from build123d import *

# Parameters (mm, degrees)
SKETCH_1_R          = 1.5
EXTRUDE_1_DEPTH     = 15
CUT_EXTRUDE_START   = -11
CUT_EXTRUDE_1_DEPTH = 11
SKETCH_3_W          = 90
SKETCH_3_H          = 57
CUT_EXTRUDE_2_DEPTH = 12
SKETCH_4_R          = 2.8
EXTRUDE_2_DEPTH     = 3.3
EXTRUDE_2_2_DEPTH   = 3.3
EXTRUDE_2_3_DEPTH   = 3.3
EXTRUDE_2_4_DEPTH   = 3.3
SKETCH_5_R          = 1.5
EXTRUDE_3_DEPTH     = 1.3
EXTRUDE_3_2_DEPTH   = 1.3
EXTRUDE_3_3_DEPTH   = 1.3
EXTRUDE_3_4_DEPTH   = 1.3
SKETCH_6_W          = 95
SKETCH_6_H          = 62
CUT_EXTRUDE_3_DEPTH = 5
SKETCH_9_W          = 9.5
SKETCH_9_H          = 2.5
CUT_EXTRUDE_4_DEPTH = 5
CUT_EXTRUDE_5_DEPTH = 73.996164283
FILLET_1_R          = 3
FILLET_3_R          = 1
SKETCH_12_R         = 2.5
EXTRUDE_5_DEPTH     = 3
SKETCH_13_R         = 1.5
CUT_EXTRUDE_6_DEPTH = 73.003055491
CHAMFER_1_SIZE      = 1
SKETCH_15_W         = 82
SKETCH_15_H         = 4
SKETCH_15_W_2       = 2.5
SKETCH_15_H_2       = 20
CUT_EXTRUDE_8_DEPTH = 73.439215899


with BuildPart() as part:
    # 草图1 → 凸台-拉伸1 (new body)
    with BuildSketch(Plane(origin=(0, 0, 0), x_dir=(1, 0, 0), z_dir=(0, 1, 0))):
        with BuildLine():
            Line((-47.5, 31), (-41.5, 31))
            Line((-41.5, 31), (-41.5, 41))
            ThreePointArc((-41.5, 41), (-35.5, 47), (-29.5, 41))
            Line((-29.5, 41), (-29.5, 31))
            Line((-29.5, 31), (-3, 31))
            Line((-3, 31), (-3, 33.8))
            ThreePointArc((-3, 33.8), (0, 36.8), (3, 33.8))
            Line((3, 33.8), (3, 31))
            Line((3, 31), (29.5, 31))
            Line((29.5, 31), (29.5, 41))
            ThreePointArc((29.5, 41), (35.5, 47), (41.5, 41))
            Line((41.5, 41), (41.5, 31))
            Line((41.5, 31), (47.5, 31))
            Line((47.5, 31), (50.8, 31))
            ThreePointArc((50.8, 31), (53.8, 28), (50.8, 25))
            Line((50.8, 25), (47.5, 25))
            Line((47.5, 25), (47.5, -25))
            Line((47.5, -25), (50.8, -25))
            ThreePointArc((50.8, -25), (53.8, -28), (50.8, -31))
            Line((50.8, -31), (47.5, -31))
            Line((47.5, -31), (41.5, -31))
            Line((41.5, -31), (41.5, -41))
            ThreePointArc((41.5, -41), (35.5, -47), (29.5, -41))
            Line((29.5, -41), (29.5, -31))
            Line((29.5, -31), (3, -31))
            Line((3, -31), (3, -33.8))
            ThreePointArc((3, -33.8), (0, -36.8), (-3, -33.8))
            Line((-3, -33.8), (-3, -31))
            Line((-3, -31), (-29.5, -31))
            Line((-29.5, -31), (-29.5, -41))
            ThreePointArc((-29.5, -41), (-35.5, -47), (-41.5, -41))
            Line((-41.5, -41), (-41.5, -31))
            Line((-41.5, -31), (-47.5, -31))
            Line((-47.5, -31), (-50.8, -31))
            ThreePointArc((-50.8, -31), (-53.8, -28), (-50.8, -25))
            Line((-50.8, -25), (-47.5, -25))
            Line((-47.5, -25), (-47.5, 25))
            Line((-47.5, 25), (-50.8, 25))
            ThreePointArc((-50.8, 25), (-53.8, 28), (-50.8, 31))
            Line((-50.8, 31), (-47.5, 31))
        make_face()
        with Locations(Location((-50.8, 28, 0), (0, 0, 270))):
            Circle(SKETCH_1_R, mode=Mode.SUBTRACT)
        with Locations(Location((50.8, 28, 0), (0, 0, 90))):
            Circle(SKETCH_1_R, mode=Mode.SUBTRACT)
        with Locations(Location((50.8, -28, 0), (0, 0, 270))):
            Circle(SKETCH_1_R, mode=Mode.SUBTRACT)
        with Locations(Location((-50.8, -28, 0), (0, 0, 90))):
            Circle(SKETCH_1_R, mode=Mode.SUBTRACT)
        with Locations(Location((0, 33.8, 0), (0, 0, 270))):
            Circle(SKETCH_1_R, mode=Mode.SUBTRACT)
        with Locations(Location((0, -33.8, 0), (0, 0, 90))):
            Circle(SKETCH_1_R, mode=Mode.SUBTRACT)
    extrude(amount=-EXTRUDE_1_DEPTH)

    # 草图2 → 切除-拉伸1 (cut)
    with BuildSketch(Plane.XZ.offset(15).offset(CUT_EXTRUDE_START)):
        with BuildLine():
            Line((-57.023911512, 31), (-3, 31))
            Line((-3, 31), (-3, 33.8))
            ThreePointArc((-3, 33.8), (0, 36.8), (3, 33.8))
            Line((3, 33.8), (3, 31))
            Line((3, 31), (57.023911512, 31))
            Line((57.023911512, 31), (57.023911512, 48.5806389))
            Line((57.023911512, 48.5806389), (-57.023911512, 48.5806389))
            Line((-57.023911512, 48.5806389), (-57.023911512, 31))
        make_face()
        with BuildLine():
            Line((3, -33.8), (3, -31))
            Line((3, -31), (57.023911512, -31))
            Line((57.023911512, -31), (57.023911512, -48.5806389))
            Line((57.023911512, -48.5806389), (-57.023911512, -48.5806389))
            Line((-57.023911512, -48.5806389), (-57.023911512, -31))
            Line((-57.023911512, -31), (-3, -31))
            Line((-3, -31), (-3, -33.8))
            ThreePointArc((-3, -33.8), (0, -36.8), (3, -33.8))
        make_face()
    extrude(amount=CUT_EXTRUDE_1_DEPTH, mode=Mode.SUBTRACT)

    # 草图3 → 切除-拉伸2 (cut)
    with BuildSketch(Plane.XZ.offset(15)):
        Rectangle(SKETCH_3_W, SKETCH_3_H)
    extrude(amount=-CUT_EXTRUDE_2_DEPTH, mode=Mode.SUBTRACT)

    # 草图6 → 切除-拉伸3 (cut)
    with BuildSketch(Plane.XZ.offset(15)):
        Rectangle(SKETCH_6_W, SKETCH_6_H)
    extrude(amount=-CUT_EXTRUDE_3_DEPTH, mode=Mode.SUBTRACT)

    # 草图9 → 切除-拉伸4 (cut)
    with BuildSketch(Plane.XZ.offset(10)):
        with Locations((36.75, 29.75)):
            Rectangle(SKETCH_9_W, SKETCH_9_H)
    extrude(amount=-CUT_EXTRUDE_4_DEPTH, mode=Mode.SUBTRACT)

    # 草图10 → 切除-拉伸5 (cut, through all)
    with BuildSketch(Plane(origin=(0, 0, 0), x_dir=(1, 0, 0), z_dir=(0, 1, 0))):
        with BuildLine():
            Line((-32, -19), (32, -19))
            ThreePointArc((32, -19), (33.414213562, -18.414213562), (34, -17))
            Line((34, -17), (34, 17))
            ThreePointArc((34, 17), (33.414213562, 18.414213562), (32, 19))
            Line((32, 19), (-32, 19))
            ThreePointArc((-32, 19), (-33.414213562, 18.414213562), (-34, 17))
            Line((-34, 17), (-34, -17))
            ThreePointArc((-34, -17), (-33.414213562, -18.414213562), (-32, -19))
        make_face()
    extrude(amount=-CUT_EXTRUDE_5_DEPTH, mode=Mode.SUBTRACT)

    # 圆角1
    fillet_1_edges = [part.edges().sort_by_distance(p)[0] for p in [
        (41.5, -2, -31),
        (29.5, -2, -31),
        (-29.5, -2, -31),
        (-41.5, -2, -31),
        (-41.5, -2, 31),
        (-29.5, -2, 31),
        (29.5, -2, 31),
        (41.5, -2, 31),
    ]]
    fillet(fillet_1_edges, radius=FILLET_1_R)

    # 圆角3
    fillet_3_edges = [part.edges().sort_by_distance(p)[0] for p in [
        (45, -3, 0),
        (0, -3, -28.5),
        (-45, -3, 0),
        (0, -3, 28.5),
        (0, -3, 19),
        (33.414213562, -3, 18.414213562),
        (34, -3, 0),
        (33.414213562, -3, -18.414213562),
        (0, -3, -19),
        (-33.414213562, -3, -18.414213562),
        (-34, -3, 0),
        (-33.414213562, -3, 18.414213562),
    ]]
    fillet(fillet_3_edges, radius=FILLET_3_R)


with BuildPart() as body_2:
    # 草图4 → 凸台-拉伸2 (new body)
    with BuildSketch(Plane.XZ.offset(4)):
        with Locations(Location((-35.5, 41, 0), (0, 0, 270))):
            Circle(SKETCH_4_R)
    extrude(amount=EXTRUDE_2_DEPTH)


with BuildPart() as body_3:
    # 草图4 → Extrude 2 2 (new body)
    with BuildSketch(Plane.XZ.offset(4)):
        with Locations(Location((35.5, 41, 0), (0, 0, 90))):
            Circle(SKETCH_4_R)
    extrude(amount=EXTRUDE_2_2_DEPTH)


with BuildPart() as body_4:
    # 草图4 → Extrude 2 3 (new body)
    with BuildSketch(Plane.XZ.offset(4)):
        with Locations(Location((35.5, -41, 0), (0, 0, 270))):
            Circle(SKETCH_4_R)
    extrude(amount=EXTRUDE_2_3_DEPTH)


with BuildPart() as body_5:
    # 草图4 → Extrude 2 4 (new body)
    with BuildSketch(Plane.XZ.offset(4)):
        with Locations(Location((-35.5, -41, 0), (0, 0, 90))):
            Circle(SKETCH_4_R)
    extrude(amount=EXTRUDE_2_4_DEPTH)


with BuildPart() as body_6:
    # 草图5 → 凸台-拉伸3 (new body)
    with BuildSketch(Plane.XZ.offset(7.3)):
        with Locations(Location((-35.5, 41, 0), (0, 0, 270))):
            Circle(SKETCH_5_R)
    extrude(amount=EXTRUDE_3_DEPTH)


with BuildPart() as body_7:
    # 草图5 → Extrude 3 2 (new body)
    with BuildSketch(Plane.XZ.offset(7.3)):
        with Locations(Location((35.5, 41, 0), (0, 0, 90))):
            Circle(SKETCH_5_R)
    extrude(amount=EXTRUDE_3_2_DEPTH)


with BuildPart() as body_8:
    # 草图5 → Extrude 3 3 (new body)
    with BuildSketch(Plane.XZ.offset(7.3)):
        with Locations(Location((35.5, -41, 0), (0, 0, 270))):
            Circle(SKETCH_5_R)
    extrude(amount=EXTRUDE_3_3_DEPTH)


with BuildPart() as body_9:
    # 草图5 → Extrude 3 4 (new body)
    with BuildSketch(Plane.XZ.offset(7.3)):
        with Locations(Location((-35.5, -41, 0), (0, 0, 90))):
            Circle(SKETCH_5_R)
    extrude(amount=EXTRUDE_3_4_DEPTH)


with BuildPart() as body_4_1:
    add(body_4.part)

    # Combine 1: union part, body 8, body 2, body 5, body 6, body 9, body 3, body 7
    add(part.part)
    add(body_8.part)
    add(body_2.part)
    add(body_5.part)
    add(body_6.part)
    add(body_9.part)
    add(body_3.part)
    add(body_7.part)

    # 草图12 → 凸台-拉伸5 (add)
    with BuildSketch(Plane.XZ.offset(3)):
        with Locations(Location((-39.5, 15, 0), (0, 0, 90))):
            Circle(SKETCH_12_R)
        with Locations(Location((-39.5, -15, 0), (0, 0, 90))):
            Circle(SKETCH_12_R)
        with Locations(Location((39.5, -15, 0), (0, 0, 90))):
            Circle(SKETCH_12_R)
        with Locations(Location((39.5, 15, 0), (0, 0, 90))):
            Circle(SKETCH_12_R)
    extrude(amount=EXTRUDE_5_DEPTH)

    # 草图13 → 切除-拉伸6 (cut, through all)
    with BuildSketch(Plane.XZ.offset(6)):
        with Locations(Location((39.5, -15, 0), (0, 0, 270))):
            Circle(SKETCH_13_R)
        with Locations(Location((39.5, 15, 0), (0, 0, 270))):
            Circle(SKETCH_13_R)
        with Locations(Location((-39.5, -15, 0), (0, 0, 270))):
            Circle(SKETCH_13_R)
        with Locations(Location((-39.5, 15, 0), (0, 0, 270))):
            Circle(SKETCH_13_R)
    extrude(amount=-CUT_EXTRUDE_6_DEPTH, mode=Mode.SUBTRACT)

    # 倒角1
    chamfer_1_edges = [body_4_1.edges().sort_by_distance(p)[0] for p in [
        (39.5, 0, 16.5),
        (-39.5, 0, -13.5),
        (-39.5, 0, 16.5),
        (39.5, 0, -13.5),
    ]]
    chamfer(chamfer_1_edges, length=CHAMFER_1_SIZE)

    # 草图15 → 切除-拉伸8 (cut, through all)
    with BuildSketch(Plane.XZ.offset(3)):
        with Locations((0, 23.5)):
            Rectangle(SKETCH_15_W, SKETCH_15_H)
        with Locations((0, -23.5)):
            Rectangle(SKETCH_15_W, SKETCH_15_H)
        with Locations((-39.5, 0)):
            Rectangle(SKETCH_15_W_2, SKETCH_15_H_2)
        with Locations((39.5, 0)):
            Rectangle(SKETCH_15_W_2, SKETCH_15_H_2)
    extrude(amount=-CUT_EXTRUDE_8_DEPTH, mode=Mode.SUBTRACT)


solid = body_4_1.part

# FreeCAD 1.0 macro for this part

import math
import FreeCAD as App
import Part
import Sketcher

V = App.Vector
Q = App.Units.Quantity


def edges_at(feature, points):
    """Names of the edges that pass closest to the given points."""
    edges = feature.Shape.Edges
    near = lambda p: min(range(len(edges)), key=lambda i: edges[i].distToShape(Part.Vertex(*p))[0])
    return sorted({f"Edge{near(p) + 1}" for p in points})


def add_polygon(sketch, points):
    """Adds a closed chain of lines whose ends are joined by coincident constraints."""
    first, n = sketch.GeometryCount, len(points)
    for a, b in zip(points, points[1:] + points[:1]):
        sketch.addGeometry(Part.LineSegment(App.Vector(*a, 0), App.Vector(*b, 0)), False)
    for i in range(n):
        sketch.addConstraint(Sketcher.Constraint("Coincident", first + i, 2, first + (i + 1) % n, 1))

doc = App.newDocument("Part")
body = doc.addObject("PartDesign::Body", "Body")

# Sketch on XZ plane
sketch1 = doc.addObject("Sketcher::SketchObject", "Sketch")
body.addObject(sketch1)
sketch1.AttachmentSupport = (doc.XZ_Plane, [""])
sketch1.MapMode = "FlatFace"
sketch1.addGeometry([
    Part.LineSegment(V(-41.5, -41, 0), V(-41.5, -31, 0)),  # 0
    Part.LineSegment(V(-41.5, -31, 0), V(-50.8, -31, 0)),  # 1
    Part.ArcOfCircle(Part.Circle(V(-50.8, -28, 0), V(0, 0, 1), 3), math.radians(90), math.radians(270)),  # 2
    Part.LineSegment(V(-50.8, -25, 0), V(-47.5, -25, 0)),  # 3
    Part.LineSegment(V(-47.5, -25, 0), V(-47.5, 25, 0)),  # 4
    Part.LineSegment(V(-47.5, 25, 0), V(-50.8, 25, 0)),  # 5
    Part.ArcOfCircle(Part.Circle(V(-50.8, 28, 0), V(0, 0, 1), 3), math.radians(90), math.radians(270)),  # 6
    Part.LineSegment(V(-50.8, 31, 0), V(-41.5, 31, 0)),  # 7
    Part.LineSegment(V(-41.5, 31, 0), V(-41.5, 41, 0)),  # 8
    Part.ArcOfCircle(Part.Circle(V(-35.5, 41, 0), V(0, 0, 1), 6), math.radians(0), math.radians(180)),  # 9
    Part.LineSegment(V(-29.5, 41, 0), V(-29.5, 31, 0)),  # 10
    Part.LineSegment(V(-29.5, 31, 0), V(-3, 31, 0)),  # 11
    Part.LineSegment(V(-3, 31, 0), V(-3, 33.8, 0)),  # 12
    Part.ArcOfCircle(Part.Circle(V(0, 33.8, 0), V(0, 0, 1), 3), math.radians(0), math.radians(180)),  # 13
    Part.LineSegment(V(3, 33.8, 0), V(3, 31, 0)),  # 14
    Part.LineSegment(V(3, 31, 0), V(29.5, 31, 0)),  # 15
    Part.LineSegment(V(29.5, 31, 0), V(29.5, 41, 0)),  # 16
    Part.ArcOfCircle(Part.Circle(V(35.5, 41, 0), V(0, 0, 1), 6), math.radians(0), math.radians(180)),  # 17
    Part.LineSegment(V(41.5, 41, 0), V(41.5, 31, 0)),  # 18
    Part.LineSegment(V(41.5, 31, 0), V(50.8, 31, 0)),  # 19
    Part.ArcOfCircle(Part.Circle(V(50.8, 28, 0), V(0, 0, 1), 3), math.radians(-90), math.radians(90)),  # 20
    Part.LineSegment(V(50.8, 25, 0), V(47.5, 25, 0)),  # 21
    Part.LineSegment(V(47.5, 25, 0), V(47.5, -25, 0)),  # 22
    Part.LineSegment(V(47.5, -25, 0), V(50.8, -25, 0)),  # 23
    Part.ArcOfCircle(Part.Circle(V(50.8, -28, 0), V(0, 0, 1), 3), math.radians(-90), math.radians(90)),  # 24
    Part.LineSegment(V(50.8, -31, 0), V(41.5, -31, 0)),  # 25
    Part.LineSegment(V(41.5, -31, 0), V(41.5, -41, 0)),  # 26
    Part.ArcOfCircle(Part.Circle(V(35.5, -41, 0), V(0, 0, 1), 6), math.radians(180), math.radians(360)),  # 27
    Part.LineSegment(V(29.5, -41, 0), V(29.5, -31, 0)),  # 28
    Part.LineSegment(V(29.5, -31, 0), V(3, -31, 0)),  # 29
    Part.LineSegment(V(3, -31, 0), V(3, -33.8, 0)),  # 30
    Part.ArcOfCircle(Part.Circle(V(0, -33.8, 0), V(0, 0, 1), 3), math.radians(180), math.radians(360)),  # 31
    Part.LineSegment(V(-3, -33.8, 0), V(-3, -31, 0)),  # 32
    Part.LineSegment(V(-3, -31, 0), V(-29.5, -31, 0)),  # 33
    Part.LineSegment(V(-29.5, -31, 0), V(-29.5, -41, 0)),  # 34
    Part.ArcOfCircle(Part.Circle(V(-35.5, -41, 0), V(0, 0, 1), 6), math.radians(180), math.radians(360)),  # 35
    Part.Circle(V(50.8, 28, 0), V(0, 0, 1), 1.5),  # 36
    Part.Circle(V(0, 33.8, 0), V(0, 0, 1), 1.5),  # 37
    Part.Circle(V(-50.8, 28, 0), V(0, 0, 1), 1.5),  # 38
    Part.Circle(V(50.8, -28, 0), V(0, 0, 1), 1.5),  # 39
    Part.Circle(V(0, -33.8, 0), V(0, 0, 1), 1.5),  # 40
    Part.Circle(V(-50.8, -28, 0), V(0, 0, 1), 1.5),  # 41
], False)
sketch1.addConstraint([
    Sketcher.Constraint("Coincident", 0, 2, 1, 1),
    Sketcher.Constraint("Tangent", 1, 2, 2, 2),
    Sketcher.Constraint("Tangent", 2, 1, 3, 1),
    Sketcher.Constraint("Coincident", 3, 2, 4, 1),
    Sketcher.Constraint("Coincident", 4, 2, 5, 1),
    Sketcher.Constraint("Tangent", 5, 2, 6, 2),
    Sketcher.Constraint("Tangent", 6, 1, 7, 1),
    Sketcher.Constraint("Coincident", 7, 2, 8, 1),
    Sketcher.Constraint("Tangent", 8, 2, 9, 2),
    Sketcher.Constraint("Tangent", 9, 1, 10, 1),
    Sketcher.Constraint("Coincident", 10, 2, 11, 1),
    Sketcher.Constraint("Coincident", 11, 2, 12, 1),
    Sketcher.Constraint("Tangent", 12, 2, 13, 2),
    Sketcher.Constraint("Tangent", 13, 1, 14, 1),
    Sketcher.Constraint("Coincident", 14, 2, 15, 1),
    Sketcher.Constraint("Coincident", 15, 2, 16, 1),
    Sketcher.Constraint("Tangent", 16, 2, 17, 2),
    Sketcher.Constraint("Tangent", 17, 1, 18, 1),
    Sketcher.Constraint("Coincident", 18, 2, 19, 1),
    Sketcher.Constraint("Tangent", 19, 2, 20, 2),
    Sketcher.Constraint("Tangent", 20, 1, 21, 1),
    Sketcher.Constraint("Coincident", 21, 2, 22, 1),
    Sketcher.Constraint("Coincident", 22, 2, 23, 1),
    Sketcher.Constraint("Tangent", 23, 2, 24, 2),
    Sketcher.Constraint("Tangent", 24, 1, 25, 1),
    Sketcher.Constraint("Coincident", 25, 2, 26, 1),
    Sketcher.Constraint("Tangent", 26, 2, 27, 2),
    Sketcher.Constraint("Tangent", 27, 1, 28, 1),
    Sketcher.Constraint("Coincident", 28, 2, 29, 1),
    Sketcher.Constraint("Coincident", 29, 2, 30, 1),
    Sketcher.Constraint("Tangent", 30, 2, 31, 2),
    Sketcher.Constraint("Tangent", 31, 1, 32, 1),
    Sketcher.Constraint("Coincident", 32, 2, 33, 1),
    Sketcher.Constraint("Coincident", 33, 2, 34, 1),
    Sketcher.Constraint("Tangent", 34, 2, 35, 2),
    Sketcher.Constraint("Tangent", 35, 1, 0, 1),
    Sketcher.Constraint("Vertical", 0),
    Sketcher.Constraint("Horizontal", 1),
    Sketcher.Constraint("Horizontal", 3),
    Sketcher.Constraint("Vertical", 4),
    Sketcher.Constraint("Horizontal", 5),
    Sketcher.Constraint("Horizontal", 7),
    Sketcher.Constraint("Vertical", 8),
    Sketcher.Constraint("Vertical", 10),
    Sketcher.Constraint("Horizontal", 11),
    Sketcher.Constraint("Vertical", 12),
    Sketcher.Constraint("Vertical", 14),
    Sketcher.Constraint("Horizontal", 15),
    Sketcher.Constraint("Vertical", 16),
    Sketcher.Constraint("Vertical", 18),
    Sketcher.Constraint("Horizontal", 19),
    Sketcher.Constraint("Horizontal", 21),
    Sketcher.Constraint("Vertical", 22),
    Sketcher.Constraint("Horizontal", 23),
    Sketcher.Constraint("Horizontal", 25),
    Sketcher.Constraint("Vertical", 26),
    Sketcher.Constraint("Vertical", 28),
    Sketcher.Constraint("Horizontal", 29),
    Sketcher.Constraint("Vertical", 30),
    Sketcher.Constraint("Vertical", 32),
    Sketcher.Constraint("Horizontal", 33),
    Sketcher.Constraint("Vertical", 34),
    Sketcher.Constraint("Coincident", 36, 3, 20, 3),
    Sketcher.Constraint("Coincident", 37, 3, 13, 3),
    Sketcher.Constraint("Coincident", 38, 3, 6, 3),
    Sketcher.Constraint("Coincident", 39, 3, 24, 3),
    Sketcher.Constraint("Coincident", 40, 3, 31, 3),
    Sketcher.Constraint("Coincident", 41, 3, 2, 3),
    Sketcher.Constraint("Equal", 2, 6),
    Sketcher.Constraint("Equal", 6, 13),
    Sketcher.Constraint("Equal", 9, 17),
    Sketcher.Constraint("Equal", 13, 20),
    Sketcher.Constraint("Equal", 20, 24),
    Sketcher.Constraint("Equal", 17, 27),
    Sketcher.Constraint("Equal", 24, 31),
    Sketcher.Constraint("Equal", 27, 35),
    Sketcher.Constraint("Equal", 36, 37),
    Sketcher.Constraint("Equal", 37, 38),
    Sketcher.Constraint("Equal", 38, 39),
    Sketcher.Constraint("Equal", 39, 40),
    Sketcher.Constraint("Equal", 40, 41),
    Sketcher.Constraint("Symmetric", 2, 3, 20, 3, -1, 1),
    Sketcher.Constraint("Symmetric", 6, 3, 24, 3, -1, 1),
    Sketcher.Constraint("Symmetric", 9, 3, 27, 3, -1, 1),
    Sketcher.Constraint("Symmetric", 13, 3, 31, 3, -1, 1),
    Sketcher.Constraint("Symmetric", 17, 3, 35, 3, -1, 1),
    Sketcher.Constraint("Symmetric", 9, 3, 17, 3, -2),
    Sketcher.Constraint("Symmetric", 6, 3, 20, 3, -2),
    Sketcher.Constraint("Symmetric", 11, 2, 14, 2, -2),
    Sketcher.Constraint("Horizontal", 7, 2, 10, 2),
    Sketcher.Constraint("Horizontal", 25, 2, 28, 2),
    Sketcher.Constraint("Horizontal", 29, 2, 32, 2),
    Sketcher.Constraint("Equal", 5, 21),
    Sketcher.Constraint("Diameter", 36, Q("3 mm")),
    Sketcher.Constraint("Radius", 2, Q("3 mm")),
    Sketcher.Constraint("Radius", 9, Q("6 mm")),
    Sketcher.Constraint("DistanceY", 0, 1, 0, 2, Q("10 mm")),
    Sketcher.Constraint("DistanceY", 4, 1, 4, 2, Q("50 mm")),
    Sketcher.Constraint("DistanceX", 1, 2, 1, 1, Q("9.3 mm")),
    Sketcher.Constraint("DistanceX", 3, 1, 3, 2, Q("3.3 mm")),
    Sketcher.Constraint("DistanceX", 11, 1, 11, 2, Q("26.5 mm")),
    Sketcher.Constraint("DistanceY", 12, 1, 12, 2, Q("2.8 mm")),
])
pad1 = doc.addObject("PartDesign::Pad", "Pad")
body.addObject(pad1)
pad1.Profile = sketch1
pad1.Length = 15

# Sketch on XZ plane
sketch2 = doc.addObject("Sketcher::SketchObject", "Sketch001")
body.addObject(sketch2)
sketch2.AttachmentSupport = (doc.XZ_Plane, [""])
sketch2.MapMode = "FlatFace"
sketch2.AttachmentOffset = App.Placement(V(0, 0, 4), App.Rotation())
sketch2.addGeometry([
    Part.LineSegment(V(-57, 31, 0), V(-3, 31, 0)),  # 0
    Part.LineSegment(V(-3, 31, 0), V(-3, 33.8, 0)),  # 1
    Part.ArcOfCircle(Part.Circle(V(0, 33.8, 0), V(0, 0, 1), 3), math.radians(0), math.radians(180)),  # 2
    Part.LineSegment(V(3, 33.8, 0), V(3, 31, 0)),  # 3
    Part.LineSegment(V(3, 31, 0), V(57, 31, 0)),  # 4
    Part.LineSegment(V(57, 31, 0), V(57, 48.6, 0)),  # 5
    Part.LineSegment(V(57, 48.6, 0), V(-57, 48.6, 0)),  # 6
    Part.LineSegment(V(-57, 48.6, 0), V(-57, 31, 0)),  # 7
    Part.LineSegment(V(3, -31, 0), V(3, -33.8, 0)),  # 8
    Part.ArcOfCircle(Part.Circle(V(0, -33.8, 0), V(0, 0, 1), 3), math.radians(180), math.radians(360)),  # 9
    Part.LineSegment(V(-3, -33.8, 0), V(-3, -31, 0)),  # 10
    Part.LineSegment(V(-3, -31, 0), V(-57, -31, 0)),  # 11
    Part.LineSegment(V(-57, -31, 0), V(-57, -48.6, 0)),  # 12
    Part.LineSegment(V(-57, -48.6, 0), V(57, -48.6, 0)),  # 13
    Part.LineSegment(V(57, -48.6, 0), V(57, -31, 0)),  # 14
    Part.LineSegment(V(57, -31, 0), V(3, -31, 0)),  # 15
], False)
sketch2.addConstraint([
    Sketcher.Constraint("Coincident", 0, 2, 1, 1),
    Sketcher.Constraint("Tangent", 1, 2, 2, 2),
    Sketcher.Constraint("Tangent", 2, 1, 3, 1),
    Sketcher.Constraint("Coincident", 3, 2, 4, 1),
    Sketcher.Constraint("Coincident", 4, 2, 5, 1),
    Sketcher.Constraint("Coincident", 5, 2, 6, 1),
    Sketcher.Constraint("Coincident", 6, 2, 7, 1),
    Sketcher.Constraint("Coincident", 7, 2, 0, 1),
    Sketcher.Constraint("Tangent", 8, 2, 9, 2),
    Sketcher.Constraint("Tangent", 9, 1, 10, 1),
    Sketcher.Constraint("Coincident", 10, 2, 11, 1),
    Sketcher.Constraint("Coincident", 11, 2, 12, 1),
    Sketcher.Constraint("Coincident", 12, 2, 13, 1),
    Sketcher.Constraint("Coincident", 13, 2, 14, 1),
    Sketcher.Constraint("Coincident", 14, 2, 15, 1),
    Sketcher.Constraint("Coincident", 15, 2, 8, 1),
    Sketcher.Constraint("Horizontal", 0),
    Sketcher.Constraint("Vertical", 1),
    Sketcher.Constraint("Vertical", 3),
    Sketcher.Constraint("Horizontal", 4),
    Sketcher.Constraint("Vertical", 5),
    Sketcher.Constraint("Horizontal", 6),
    Sketcher.Constraint("Vertical", 7),
    Sketcher.Constraint("Vertical", 8),
    Sketcher.Constraint("Vertical", 10),
    Sketcher.Constraint("Horizontal", 11),
    Sketcher.Constraint("Vertical", 12),
    Sketcher.Constraint("Horizontal", 13),
    Sketcher.Constraint("Vertical", 14),
    Sketcher.Constraint("Horizontal", 15),
    Sketcher.Constraint("Equal", 2, 9),
    Sketcher.Constraint("Symmetric", 2, 3, 9, 3, -1, 1),
    Sketcher.Constraint("Symmetric", 4, 2, 11, 2, -1, 1),
    Sketcher.Constraint("Symmetric", 6, 2, 13, 2, -1, 1),
    Sketcher.Constraint("Symmetric", 0, 2, 3, 2, -2),
    Sketcher.Constraint("Symmetric", 11, 2, 14, 2, -2),
    Sketcher.Constraint("Radius", 2, Q("3 mm")),
    Sketcher.Constraint("DistanceY", 1, 1, 1, 2, Q("2.8 mm")),
    Sketcher.Constraint("DistanceY", -1, 1, 0, 2, Q("31 mm")),
    Sketcher.Constraint("DistanceX", 0, 1, 0, 2, Q("54.023912 mm")),
    Sketcher.Constraint("DistanceY", 5, 1, 5, 2, Q("17.580639 mm")),
])
pocket1 = doc.addObject("PartDesign::Pocket", "Pocket")
body.addObject(pocket1)
pocket1.Profile = sketch2
pocket1.Length = 11
pocket1.Reversed = True

# Sketch on XZ plane
sketch3 = doc.addObject("Sketcher::SketchObject", "Sketch002")
body.addObject(sketch3)
sketch3.AttachmentSupport = (doc.XZ_Plane, [""])
sketch3.MapMode = "FlatFace"
sketch3.AttachmentOffset = App.Placement(V(0, 0, 15), App.Rotation())
add_polygon(sketch3, [(-45, 28), (-45, -28), (45, -28), (45, 28)])  # lines 0-3
sketch3.addConstraint([
    Sketcher.Constraint("Vertical", 0),
    Sketcher.Constraint("Horizontal", 1),
    Sketcher.Constraint("Vertical", 2),
    Sketcher.Constraint("Horizontal", 3),
    Sketcher.Constraint("Symmetric", 0, 2, 2, 2, -1, 1),
    Sketcher.Constraint("DistanceX", 1, 1, 1, 2, Q("90 mm")),
    Sketcher.Constraint("DistanceY", 0, 2, 0, 1, Q("57 mm")),
])
pocket2 = doc.addObject("PartDesign::Pocket", "Pocket001")
body.addObject(pocket2)
pocket2.Profile = sketch3
pocket2.Length = 12

# Sketch on XZ plane
sketch4 = doc.addObject("Sketcher::SketchObject", "Sketch003")
body.addObject(sketch4)
sketch4.AttachmentSupport = (doc.XZ_Plane, [""])
sketch4.MapMode = "FlatFace"
sketch4.AttachmentOffset = App.Placement(V(0, 0, 15), App.Rotation())
add_polygon(sketch4, [(-48, 31), (-48, -31), (48, -31), (48, 31)])  # lines 0-3
sketch4.addConstraint([
    Sketcher.Constraint("Vertical", 0),
    Sketcher.Constraint("Horizontal", 1),
    Sketcher.Constraint("Vertical", 2),
    Sketcher.Constraint("Horizontal", 3),
    Sketcher.Constraint("Symmetric", 0, 2, 2, 2, -1, 1),
    Sketcher.Constraint("DistanceX", 1, 1, 1, 2, Q("95 mm")),
    Sketcher.Constraint("DistanceY", 0, 2, 0, 1, Q("62 mm")),
])
pocket3 = doc.addObject("PartDesign::Pocket", "Pocket002")
body.addObject(pocket3)
pocket3.Profile = sketch4
pocket3.Length = 5

# Sketch on XZ plane
sketch5 = doc.addObject("Sketcher::SketchObject", "Sketch004")
body.addObject(sketch5)
sketch5.AttachmentSupport = (doc.XZ_Plane, [""])
sketch5.MapMode = "FlatFace"
sketch5.AttachmentOffset = App.Placement(V(0, 0, 10), App.Rotation())
add_polygon(sketch5, [(32, 31), (32, 28.5), (41.5, 28.5), (41.5, 31)])  # lines 0-3
sketch5.addConstraint([
    Sketcher.Constraint("Vertical", 0),
    Sketcher.Constraint("Horizontal", 1),
    Sketcher.Constraint("Vertical", 2),
    Sketcher.Constraint("Horizontal", 3),
    Sketcher.Constraint("DistanceX", 1, 1, 1, 2, Q("9.5 mm")),
    Sketcher.Constraint("DistanceY", 0, 2, 0, 1, Q("2.5 mm")),
    Sketcher.Constraint("DistanceX", -1, 1, 0, 2, Q("32 mm")),
    Sketcher.Constraint("DistanceY", -1, 1, 2, 2, Q("31 mm")),
])
pocket4 = doc.addObject("PartDesign::Pocket", "Pocket003")
body.addObject(pocket4)
pocket4.Profile = sketch5
pocket4.Length = 5

# Sketch on XZ plane
sketch6 = doc.addObject("Sketcher::SketchObject", "Sketch005")
body.addObject(sketch6)
sketch6.AttachmentSupport = (doc.XZ_Plane, [""])
sketch6.MapMode = "FlatFace"
sketch6.addGeometry([
    Part.LineSegment(V(-32, 19, 0), V(32, 19, 0)),  # 0
    Part.ArcOfCircle(Part.Circle(V(32, 17, 0), V(0, 0, 1), 2), math.radians(0), math.radians(90)),  # 1
    Part.LineSegment(V(34, 17, 0), V(34, -17, 0)),  # 2
    Part.ArcOfCircle(Part.Circle(V(32, -17, 0), V(0, 0, 1), 2), math.radians(-90), math.radians(0)),  # 3
    Part.LineSegment(V(32, -19, 0), V(-32, -19, 0)),  # 4
    Part.ArcOfCircle(Part.Circle(V(-32, -17, 0), V(0, 0, 1), 2), math.radians(-180), math.radians(-90)),  # 5
    Part.LineSegment(V(-34, -17, 0), V(-34, 17, 0)),  # 6
    Part.ArcOfCircle(Part.Circle(V(-32, 17, 0), V(0, 0, 1), 2), math.radians(90), math.radians(180)),  # 7
], False)
sketch6.addConstraint([
    Sketcher.Constraint("Tangent", 0, 2, 1, 2),
    Sketcher.Constraint("Tangent", 1, 1, 2, 1),
    Sketcher.Constraint("Tangent", 2, 2, 3, 2),
    Sketcher.Constraint("Tangent", 3, 1, 4, 1),
    Sketcher.Constraint("Tangent", 4, 2, 5, 2),
    Sketcher.Constraint("Tangent", 5, 1, 6, 1),
    Sketcher.Constraint("Tangent", 6, 2, 7, 2),
    Sketcher.Constraint("Tangent", 7, 1, 0, 1),
    Sketcher.Constraint("Horizontal", 0),
    Sketcher.Constraint("Vertical", 2),
    Sketcher.Constraint("Horizontal", 4),
    Sketcher.Constraint("Vertical", 6),
    Sketcher.Constraint("Equal", 1, 3),
    Sketcher.Constraint("Equal", 3, 5),
    Sketcher.Constraint("Equal", 5, 7),
    Sketcher.Constraint("Symmetric", 1, 3, 5, 3, -1, 1),
    Sketcher.Constraint("Radius", 1, Q("2 mm")),
    Sketcher.Constraint("DistanceX", 0, 1, 0, 2, Q("64 mm")),
    Sketcher.Constraint("DistanceY", 2, 2, 2, 1, Q("34 mm")),
])
pocket5 = doc.addObject("PartDesign::Pocket", "Pocket004")
body.addObject(pocket5)
pocket5.Profile = sketch6
pocket5.Type = "ThroughAll"
pocket5.Reversed = True
doc.recompute()

fillet = doc.addObject("PartDesign::Fillet", "Fillet")
body.addObject(fillet)
fillet.Base = (pocket5, edges_at(pocket5, [
    (41.5, -2, -31),
    (29.5, -2, -31),
    (-29.5, -2, -31),
    (-41.5, -2, -31),
    (-41.5, -2, 31),
    (-29.5, -2, 31),
    (29.5, -2, 31),
    (41.5, -2, 31),
]))
fillet.Radius = 3
doc.recompute()

fillet2 = doc.addObject("PartDesign::Fillet", "Fillet001")
body.addObject(fillet2)
fillet2.Base = (fillet, edges_at(fillet, [
    (45, -3, 0),
    (0, -3, -28.5),
    (-45, -3, 0),
    (0, -3, 28.5),
    (0, -3, 19),
    (33.414, -3, 18.414),
    (34, -3, 0),
    (33.414, -3, -18.414),
    (0, -3, -19),
    (-33.414, -3, -18.414),
    (-34, -3, 0),
    (-33.414, -3, 18.414),
]))
fillet2.Radius = 1
body2 = doc.addObject("PartDesign::Body", "Body001")

# Sketch on XZ plane
sketch7 = doc.addObject("Sketcher::SketchObject", "Sketch006")
body2.addObject(sketch7)
sketch7.AttachmentSupport = (doc.getObject("XZ_Plane001"), [""])
sketch7.MapMode = "FlatFace"
sketch7.AttachmentOffset = App.Placement(V(0, 0, 4), App.Rotation())
sketch7.addGeometry(Part.Circle(V(-35.5, 41, 0), V(0, 0, 1), 2.8), False)
sketch7.addConstraint([
    Sketcher.Constraint("Diameter", 0, Q("5.6 mm")),
    Sketcher.Constraint("DistanceY", -1, 1, 0, 3, Q("41 mm")),
    Sketcher.Constraint("DistanceX", 0, 3, -1, 1, Q("35.5 mm")),
])
pad2 = doc.addObject("PartDesign::Pad", "Pad001")
body2.addObject(pad2)
pad2.Profile = sketch7
pad2.Length = 3.3
body3 = doc.addObject("PartDesign::Body", "Body002")

# Sketch on XZ plane
sketch8 = doc.addObject("Sketcher::SketchObject", "Sketch007")
body3.addObject(sketch8)
sketch8.AttachmentSupport = (doc.getObject("XZ_Plane002"), [""])
sketch8.MapMode = "FlatFace"
sketch8.AttachmentOffset = App.Placement(V(0, 0, 4), App.Rotation())
sketch8.addGeometry(Part.Circle(V(35.5, 41, 0), V(0, 0, 1), 2.8), False)
sketch8.addConstraint([
    Sketcher.Constraint("Diameter", 0, Q("5.6 mm")),
    Sketcher.Constraint("DistanceY", -1, 1, 0, 3, Q("41 mm")),
    Sketcher.Constraint("DistanceX", -1, 1, 0, 3, Q("35.5 mm")),
])
pad3 = doc.addObject("PartDesign::Pad", "Pad002")
body3.addObject(pad3)
pad3.Profile = sketch8
pad3.Length = 3.3
body4 = doc.addObject("PartDesign::Body", "Body003")

# Sketch on XZ plane
sketch9 = doc.addObject("Sketcher::SketchObject", "Sketch008")
body4.addObject(sketch9)
sketch9.AttachmentSupport = (doc.getObject("XZ_Plane003"), [""])
sketch9.MapMode = "FlatFace"
sketch9.AttachmentOffset = App.Placement(V(0, 0, 4), App.Rotation())
sketch9.addGeometry(Part.Circle(V(35.5, -41, 0), V(0, 0, 1), 2.8), False)
sketch9.addConstraint([
    Sketcher.Constraint("Diameter", 0, Q("5.6 mm")),
    Sketcher.Constraint("DistanceY", 0, 3, -1, 1, Q("41 mm")),
    Sketcher.Constraint("DistanceX", -1, 1, 0, 3, Q("35.5 mm")),
])
pad4 = doc.addObject("PartDesign::Pad", "Pad003")
body4.addObject(pad4)
pad4.Profile = sketch9
pad4.Length = 3.3
body5 = doc.addObject("PartDesign::Body", "Body004")

# Sketch on XZ plane
sketch10 = doc.addObject("Sketcher::SketchObject", "Sketch009")
body5.addObject(sketch10)
sketch10.AttachmentSupport = (doc.getObject("XZ_Plane004"), [""])
sketch10.MapMode = "FlatFace"
sketch10.AttachmentOffset = App.Placement(V(0, 0, 4), App.Rotation())
sketch10.addGeometry(Part.Circle(V(-35.5, -41, 0), V(0, 0, 1), 2.8), False)
sketch10.addConstraint([
    Sketcher.Constraint("Diameter", 0, Q("5.6 mm")),
    Sketcher.Constraint("DistanceY", 0, 3, -1, 1, Q("41 mm")),
    Sketcher.Constraint("DistanceX", 0, 3, -1, 1, Q("35.5 mm")),
])
pad5 = doc.addObject("PartDesign::Pad", "Pad004")
body5.addObject(pad5)
pad5.Profile = sketch10
pad5.Length = 3.3
body6 = doc.addObject("PartDesign::Body", "Body005")

# Sketch on XZ plane
sketch11 = doc.addObject("Sketcher::SketchObject", "Sketch010")
body6.addObject(sketch11)
sketch11.AttachmentSupport = (doc.getObject("XZ_Plane005"), [""])
sketch11.MapMode = "FlatFace"
sketch11.AttachmentOffset = App.Placement(V(0, 0, 7.3), App.Rotation())
sketch11.addGeometry(Part.Circle(V(-35.5, 41, 0), V(0, 0, 1), 1.5), False)
sketch11.addConstraint([
    Sketcher.Constraint("Diameter", 0, Q("3 mm")),
    Sketcher.Constraint("DistanceY", -1, 1, 0, 3, Q("41 mm")),
    Sketcher.Constraint("DistanceX", 0, 3, -1, 1, Q("35.5 mm")),
])
pad6 = doc.addObject("PartDesign::Pad", "Pad005")
body6.addObject(pad6)
pad6.Profile = sketch11
pad6.Length = 1.3
body7 = doc.addObject("PartDesign::Body", "Body006")

# Sketch on XZ plane
sketch12 = doc.addObject("Sketcher::SketchObject", "Sketch011")
body7.addObject(sketch12)
sketch12.AttachmentSupport = (doc.getObject("XZ_Plane006"), [""])
sketch12.MapMode = "FlatFace"
sketch12.AttachmentOffset = App.Placement(V(0, 0, 7.3), App.Rotation())
sketch12.addGeometry(Part.Circle(V(35.5, 41, 0), V(0, 0, 1), 1.5), False)
sketch12.addConstraint([
    Sketcher.Constraint("Diameter", 0, Q("3 mm")),
    Sketcher.Constraint("DistanceY", -1, 1, 0, 3, Q("41 mm")),
    Sketcher.Constraint("DistanceX", -1, 1, 0, 3, Q("35.5 mm")),
])
pad7 = doc.addObject("PartDesign::Pad", "Pad006")
body7.addObject(pad7)
pad7.Profile = sketch12
pad7.Length = 1.3
body8 = doc.addObject("PartDesign::Body", "Body007")

# Sketch on XZ plane
sketch13 = doc.addObject("Sketcher::SketchObject", "Sketch012")
body8.addObject(sketch13)
sketch13.AttachmentSupport = (doc.getObject("XZ_Plane007"), [""])
sketch13.MapMode = "FlatFace"
sketch13.AttachmentOffset = App.Placement(V(0, 0, 7.3), App.Rotation())
sketch13.addGeometry(Part.Circle(V(35.5, -41, 0), V(0, 0, 1), 1.5), False)
sketch13.addConstraint([
    Sketcher.Constraint("Diameter", 0, Q("3 mm")),
    Sketcher.Constraint("DistanceY", 0, 3, -1, 1, Q("41 mm")),
    Sketcher.Constraint("DistanceX", -1, 1, 0, 3, Q("35.5 mm")),
])
pad8 = doc.addObject("PartDesign::Pad", "Pad007")
body8.addObject(pad8)
pad8.Profile = sketch13
pad8.Length = 1.3
body9 = doc.addObject("PartDesign::Body", "Body008")

# Sketch on XZ plane
sketch14 = doc.addObject("Sketcher::SketchObject", "Sketch013")
body9.addObject(sketch14)
sketch14.AttachmentSupport = (doc.getObject("XZ_Plane008"), [""])
sketch14.MapMode = "FlatFace"
sketch14.AttachmentOffset = App.Placement(V(0, 0, 7.3), App.Rotation())
sketch14.addGeometry(Part.Circle(V(-35.5, -41, 0), V(0, 0, 1), 1.5), False)
sketch14.addConstraint([
    Sketcher.Constraint("Diameter", 0, Q("3 mm")),
    Sketcher.Constraint("DistanceY", 0, 3, -1, 1, Q("41 mm")),
    Sketcher.Constraint("DistanceX", 0, 3, -1, 1, Q("35.5 mm")),
])
pad9 = doc.addObject("PartDesign::Pad", "Pad008")
body9.addObject(pad9)
pad9.Profile = sketch14
pad9.Length = 1.3
doc.recompute()

boolean = doc.addObject("PartDesign::Boolean", "Boolean")
body4.addObject(boolean)
boolean.Type = "Fuse"
boolean.addObjects([body])
doc.recompute()

boolean2 = doc.addObject("PartDesign::Boolean", "Boolean001")
body4.addObject(boolean2)
boolean2.Type = "Fuse"
boolean2.addObjects([body8])
doc.recompute()

boolean3 = doc.addObject("PartDesign::Boolean", "Boolean002")
body4.addObject(boolean3)
boolean3.Type = "Fuse"
boolean3.addObjects([body2])
doc.recompute()

boolean4 = doc.addObject("PartDesign::Boolean", "Boolean003")
body4.addObject(boolean4)
boolean4.Type = "Fuse"
boolean4.addObjects([body5])
doc.recompute()

boolean5 = doc.addObject("PartDesign::Boolean", "Boolean004")
body4.addObject(boolean5)
boolean5.Type = "Fuse"
boolean5.addObjects([body6])
doc.recompute()

boolean6 = doc.addObject("PartDesign::Boolean", "Boolean005")
body4.addObject(boolean6)
boolean6.Type = "Fuse"
boolean6.addObjects([body9])
doc.recompute()

boolean7 = doc.addObject("PartDesign::Boolean", "Boolean006")
body4.addObject(boolean7)
boolean7.Type = "Fuse"
boolean7.addObjects([body3])
doc.recompute()

boolean8 = doc.addObject("PartDesign::Boolean", "Boolean007")
body4.addObject(boolean8)
boolean8.Type = "Fuse"
boolean8.addObjects([body7])

# Sketch on XZ plane
sketch15 = doc.addObject("Sketcher::SketchObject", "Sketch014")
body4.addObject(sketch15)
sketch15.AttachmentSupport = (doc.getObject("XZ_Plane003"), [""])
sketch15.MapMode = "FlatFace"
sketch15.AttachmentOffset = App.Placement(V(0, 0, 3), App.Rotation())
sketch15.addGeometry([
    Part.Circle(V(-39.5, 15, 0), V(0, 0, 1), 2.5),
    Part.Circle(V(-39.5, -15, 0), V(0, 0, 1), 2.5),
    Part.Circle(V(39.5, -15, 0), V(0, 0, 1), 2.5),
    Part.Circle(V(39.5, 15, 0), V(0, 0, 1), 2.5),
], False)
sketch15.addConstraint([
    Sketcher.Constraint("Equal", 0, 1),
    Sketcher.Constraint("Equal", 1, 2),
    Sketcher.Constraint("Equal", 2, 3),
    Sketcher.Constraint("Symmetric", 0, 3, 2, 3, -1, 1),
    Sketcher.Constraint("Symmetric", 1, 3, 3, 3, -1, 1),
    Sketcher.Constraint("Symmetric", 1, 3, 2, 3, -2),
    Sketcher.Constraint("Diameter", 0, Q("5 mm")),
    Sketcher.Constraint("DistanceY", -1, 1, 0, 3, Q("15 mm")),
    Sketcher.Constraint("DistanceX", 1, 3, 2, 3, Q("79 mm")),
])
pad10 = doc.addObject("PartDesign::Pad", "Pad009")
body4.addObject(pad10)
pad10.Profile = sketch15
pad10.Length = 3

# Sketch on XZ plane
sketch16 = doc.addObject("Sketcher::SketchObject", "Sketch015")
body4.addObject(sketch16)
sketch16.AttachmentSupport = (doc.getObject("XZ_Plane003"), [""])
sketch16.MapMode = "FlatFace"
sketch16.AttachmentOffset = App.Placement(V(0, 0, 6), App.Rotation())
sketch16.addGeometry([
    Part.Circle(V(39.5, -15, 0), V(0, 0, 1), 1.5),
    Part.Circle(V(39.5, 15, 0), V(0, 0, 1), 1.5),
    Part.Circle(V(-39.5, -15, 0), V(0, 0, 1), 1.5),
    Part.Circle(V(-39.5, 15, 0), V(0, 0, 1), 1.5),
], False)
sketch16.addConstraint([
    Sketcher.Constraint("Equal", 0, 1),
    Sketcher.Constraint("Equal", 1, 2),
    Sketcher.Constraint("Equal", 2, 3),
    Sketcher.Constraint("Symmetric", 1, 3, 2, 3, -1, 1),
    Sketcher.Constraint("Symmetric", 0, 3, 3, 3, -1, 1),
    Sketcher.Constraint("Symmetric", 0, 3, 2, 3, -2),
    Sketcher.Constraint("Diameter", 0, Q("3 mm")),
    Sketcher.Constraint("DistanceY", 0, 3, -1, 1, Q("15 mm")),
    Sketcher.Constraint("DistanceX", 2, 3, 0, 3, Q("79 mm")),
])
pocket6 = doc.addObject("PartDesign::Pocket", "Pocket005")
body4.addObject(pocket6)
pocket6.Profile = sketch16
pocket6.Type = "ThroughAll"
doc.recompute()

chamfer = doc.addObject("PartDesign::Chamfer", "Chamfer")
body4.addObject(chamfer)
chamfer.Base = (pocket6, edges_at(pocket6, [
    (39.5, 0, 16.5),
    (-39.5, 0, -13.5),
    (-39.5, 0, 16.5),
    (39.5, 0, -13.5),
]))
chamfer.Size = 1

# Sketch on XZ plane
sketch17 = doc.addObject("Sketcher::SketchObject", "Sketch016")
body4.addObject(sketch17)
sketch17.AttachmentSupport = (doc.getObject("XZ_Plane003"), [""])
sketch17.MapMode = "FlatFace"
sketch17.AttachmentOffset = App.Placement(V(0, 0, 3), App.Rotation())
add_polygon(sketch17, [(-41, 25.5), (-41, 21.5), (41, 21.5), (41, 25.5)])  # lines 0-3
add_polygon(sketch17, [(-41, -21.5), (-41, -25.5), (41, -25.5), (41, -21.5)])  # lines 4-7
add_polygon(sketch17, [(-40.8, 10), (-40.8, -10), (-38.2, -10), (-38.2, 10)])  # lines 8-11
add_polygon(sketch17, [(38.2, 10), (38.2, -10), (40.8, -10), (40.8, 10)])  # lines 12-15
sketch17.addConstraint([
    Sketcher.Constraint("Vertical", 0),
    Sketcher.Constraint("Horizontal", 1),
    Sketcher.Constraint("Vertical", 2),
    Sketcher.Constraint("Horizontal", 3),
    Sketcher.Constraint("Vertical", 4),
    Sketcher.Constraint("Horizontal", 5),
    Sketcher.Constraint("Vertical", 6),
    Sketcher.Constraint("Horizontal", 7),
    Sketcher.Constraint("Vertical", 8),
    Sketcher.Constraint("Horizontal", 9),
    Sketcher.Constraint("Vertical", 10),
    Sketcher.Constraint("Horizontal", 11),
    Sketcher.Constraint("Vertical", 12),
    Sketcher.Constraint("Horizontal", 13),
    Sketcher.Constraint("Vertical", 14),
    Sketcher.Constraint("Horizontal", 15),
    Sketcher.Constraint("Symmetric", 2, 2, 4, 2, -1, 1),
    Sketcher.Constraint("Symmetric", 0, 2, 6, 2, -1, 1),
    Sketcher.Constraint("Symmetric", 10, 2, 12, 2, -1, 1),
    Sketcher.Constraint("Symmetric", 8, 2, 14, 2, -1, 1),
    Sketcher.Constraint("Horizontal", 9, 2, 12, 2),
    Sketcher.Constraint("Vertical", 3, 2, 4, 2),
    Sketcher.Constraint("DistanceX", 1, 1, 1, 2, Q("82 mm")),
    Sketcher.Constraint("DistanceY", 0, 2, 0, 1, Q("4 mm")),
    Sketcher.Constraint("DistanceY", 8, 2, 8, 1, Q("20 mm")),
    Sketcher.Constraint("DistanceX", 9, 1, 9, 2, Q("2.5 mm")),
    Sketcher.Constraint("DistanceY", 4, 2, 0, 2, Q("47 mm")),
    Sketcher.Constraint("DistanceX", 9, 2, 12, 2, Q("76.5 mm")),
])
pocket7 = doc.addObject("PartDesign::Pocket", "Pocket006")
body4.addObject(pocket7)
pocket7.Profile = sketch17
pocket7.Type = "ThroughAll"

doc.recompute()
